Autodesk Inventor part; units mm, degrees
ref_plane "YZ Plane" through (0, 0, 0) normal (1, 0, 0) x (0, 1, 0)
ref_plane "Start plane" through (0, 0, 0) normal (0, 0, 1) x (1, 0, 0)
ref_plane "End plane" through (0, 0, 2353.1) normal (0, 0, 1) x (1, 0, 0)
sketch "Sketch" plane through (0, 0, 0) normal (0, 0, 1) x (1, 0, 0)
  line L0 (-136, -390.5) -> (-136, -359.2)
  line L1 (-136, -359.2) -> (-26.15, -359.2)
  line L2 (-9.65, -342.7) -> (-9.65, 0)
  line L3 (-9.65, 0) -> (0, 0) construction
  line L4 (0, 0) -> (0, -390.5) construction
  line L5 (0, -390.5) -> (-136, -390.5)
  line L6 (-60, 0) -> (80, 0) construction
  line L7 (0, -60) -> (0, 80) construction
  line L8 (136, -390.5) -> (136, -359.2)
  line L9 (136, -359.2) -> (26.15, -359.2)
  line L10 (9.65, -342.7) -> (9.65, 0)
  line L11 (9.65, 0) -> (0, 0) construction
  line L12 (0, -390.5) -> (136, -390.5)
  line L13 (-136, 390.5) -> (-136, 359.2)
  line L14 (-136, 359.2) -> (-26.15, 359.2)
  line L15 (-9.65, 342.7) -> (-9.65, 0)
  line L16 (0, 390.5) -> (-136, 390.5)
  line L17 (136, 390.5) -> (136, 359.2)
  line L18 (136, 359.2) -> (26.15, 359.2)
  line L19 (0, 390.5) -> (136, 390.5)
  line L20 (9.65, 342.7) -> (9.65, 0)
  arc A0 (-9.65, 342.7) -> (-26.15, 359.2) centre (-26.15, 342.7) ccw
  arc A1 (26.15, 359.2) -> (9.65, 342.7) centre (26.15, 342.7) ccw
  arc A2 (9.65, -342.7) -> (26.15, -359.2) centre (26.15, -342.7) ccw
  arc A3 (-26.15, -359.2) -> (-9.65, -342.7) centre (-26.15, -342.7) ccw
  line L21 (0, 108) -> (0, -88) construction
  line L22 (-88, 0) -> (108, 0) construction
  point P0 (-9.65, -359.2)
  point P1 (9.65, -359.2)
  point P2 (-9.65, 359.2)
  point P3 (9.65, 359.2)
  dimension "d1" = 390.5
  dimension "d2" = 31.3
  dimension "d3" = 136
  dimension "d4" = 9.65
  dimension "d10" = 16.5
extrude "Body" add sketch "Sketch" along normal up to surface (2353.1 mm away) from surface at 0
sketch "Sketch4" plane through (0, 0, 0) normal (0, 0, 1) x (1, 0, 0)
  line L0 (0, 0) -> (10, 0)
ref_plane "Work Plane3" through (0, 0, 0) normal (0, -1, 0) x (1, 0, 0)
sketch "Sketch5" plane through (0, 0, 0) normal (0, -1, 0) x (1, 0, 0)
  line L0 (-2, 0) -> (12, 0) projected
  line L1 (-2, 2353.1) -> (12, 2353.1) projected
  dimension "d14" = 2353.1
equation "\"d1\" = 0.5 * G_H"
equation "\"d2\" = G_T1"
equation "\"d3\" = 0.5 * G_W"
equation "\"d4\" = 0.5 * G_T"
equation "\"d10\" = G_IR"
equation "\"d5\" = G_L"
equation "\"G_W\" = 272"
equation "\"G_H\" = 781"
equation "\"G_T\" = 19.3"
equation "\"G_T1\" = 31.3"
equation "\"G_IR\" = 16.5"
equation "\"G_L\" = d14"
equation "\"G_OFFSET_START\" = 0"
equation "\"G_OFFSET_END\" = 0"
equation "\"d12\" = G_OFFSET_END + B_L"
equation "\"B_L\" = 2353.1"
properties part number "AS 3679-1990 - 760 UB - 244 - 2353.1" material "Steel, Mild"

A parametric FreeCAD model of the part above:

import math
import FreeCAD as App
import Part
import Sketcher
from FreeCAD import Vector

doc = App.newDocument("Part")
body = doc.addObject("PartDesign::Body", "Body")

sketch1 = body.newObject("Sketcher::SketchObject", "Sketch")
sketch1.AttachmentSupport = (doc.getObject("XY_Plane"), [""])
sketch1.MapMode = "FlatFace"
sketch1.addGeometry([
    Part.LineSegment(Vector(-136, -359.2, 0), Vector(-136, -390.5, 0)),
    Part.LineSegment(Vector(-136, -390.5, 0), Vector(136, -390.5, 0)),
    Part.LineSegment(Vector(136, -390.5, 0), Vector(136, -359.2, 0)),
    Part.LineSegment(Vector(136, -359.2, 0), Vector(26.15, -359.2, 0)),
    Part.ArcOfCircle(Part.Circle(Vector(26.15, -342.7, 0), Vector(0, 0, 1), 16.5), math.radians(180), math.radians(270)),
    Part.LineSegment(Vector(9.65, -342.7, 0), Vector(9.65, 342.7, 0)),
    Part.ArcOfCircle(Part.Circle(Vector(26.15, 342.7, 0), Vector(0, 0, 1), 16.5), math.radians(90), math.radians(180)),
    Part.LineSegment(Vector(26.15, 359.2, 0), Vector(136, 359.2, 0)),
    Part.LineSegment(Vector(136, 359.2, 0), Vector(136, 390.5, 0)),
    Part.LineSegment(Vector(136, 390.5, 0), Vector(-136, 390.5, 0)),
    Part.LineSegment(Vector(-136, 390.5, 0), Vector(-136, 359.2, 0)),
    Part.LineSegment(Vector(-136, 359.2, 0), Vector(-26.15, 359.2, 0)),
    Part.ArcOfCircle(Part.Circle(Vector(-26.15, 342.7, 0), Vector(0, 0, 1), 16.5), math.radians(0), math.radians(90)),
    Part.LineSegment(Vector(-9.65, 342.7, 0), Vector(-9.65, -342.7, 0)),
    Part.ArcOfCircle(Part.Circle(Vector(-26.15, -342.7, 0), Vector(0, 0, 1), 16.5), math.radians(-90), math.radians(0)),
    Part.LineSegment(Vector(-26.15, -359.2, 0), Vector(-136, -359.2, 0)),
], False)
sketch1.addConstraint([
    Sketcher.Constraint("Coincident", 0, 2, 1, 1),
    Sketcher.Constraint("Coincident", 1, 2, 2, 1),
    Sketcher.Constraint("Coincident", 2, 2, 3, 1),
    Sketcher.Constraint("Tangent", 3, 2, 4, 2),
    Sketcher.Constraint("Tangent", 4, 1, 5, 1),
    Sketcher.Constraint("Tangent", 5, 2, 6, 2),
    Sketcher.Constraint("Tangent", 6, 1, 7, 1),
    Sketcher.Constraint("Coincident", 7, 2, 8, 1),
    Sketcher.Constraint("Coincident", 8, 2, 9, 1),
    Sketcher.Constraint("Coincident", 9, 2, 10, 1),
    Sketcher.Constraint("Coincident", 10, 2, 11, 1),
    Sketcher.Constraint("Tangent", 11, 2, 12, 2),
    Sketcher.Constraint("Tangent", 12, 1, 13, 1),
    Sketcher.Constraint("Tangent", 13, 2, 14, 2),
    Sketcher.Constraint("Tangent", 14, 1, 15, 1),
    Sketcher.Constraint("Coincident", 15, 2, 0, 1),
    Sketcher.Constraint("Vertical", 0),
    Sketcher.Constraint("Horizontal", 1),
    Sketcher.Constraint("Vertical", 2),
    Sketcher.Constraint("Horizontal", 3),
    Sketcher.Constraint("Vertical", 5),
    Sketcher.Constraint("Horizontal", 7),
    Sketcher.Constraint("Vertical", 8),
    Sketcher.Constraint("Horizontal", 9),
    Sketcher.Constraint("Vertical", 10),
    Sketcher.Constraint("Horizontal", 11),
    Sketcher.Constraint("Vertical", 13),
    Sketcher.Constraint("Horizontal", 15),
    Sketcher.Constraint("Equal", 4, 6),
    Sketcher.Constraint("Equal", 6, 12),
    Sketcher.Constraint("Equal", 12, 14),
    Sketcher.Constraint("Symmetric", 4, 3, 12, 3, -1, 1),
    Sketcher.Constraint("Symmetric", 0, 2, 8, 2, -1, 1),
    Sketcher.Constraint("Symmetric", 7, 2, 10, 2, -2),
    Sketcher.Constraint("Symmetric", 2, 2, 15, 2, -2),
    Sketcher.Constraint("Radius", 4, 16.5),
    Sketcher.Constraint("DistanceY", 0, 2, 0, 1, 31.3),
    Sketcher.Constraint("DistanceX", 0, 2, -1, 1, 136.0),
    Sketcher.Constraint("DistanceY", 0, 2, -1, 1, 390.5),
    Sketcher.Constraint("DistanceX", -1, 1, 4, 1, 9.65),
])
pad1 = body.newObject("PartDesign::Pad", "Pad")
pad1.Profile = sketch1
pad1.Length = 2353.1

doc.recompute()
